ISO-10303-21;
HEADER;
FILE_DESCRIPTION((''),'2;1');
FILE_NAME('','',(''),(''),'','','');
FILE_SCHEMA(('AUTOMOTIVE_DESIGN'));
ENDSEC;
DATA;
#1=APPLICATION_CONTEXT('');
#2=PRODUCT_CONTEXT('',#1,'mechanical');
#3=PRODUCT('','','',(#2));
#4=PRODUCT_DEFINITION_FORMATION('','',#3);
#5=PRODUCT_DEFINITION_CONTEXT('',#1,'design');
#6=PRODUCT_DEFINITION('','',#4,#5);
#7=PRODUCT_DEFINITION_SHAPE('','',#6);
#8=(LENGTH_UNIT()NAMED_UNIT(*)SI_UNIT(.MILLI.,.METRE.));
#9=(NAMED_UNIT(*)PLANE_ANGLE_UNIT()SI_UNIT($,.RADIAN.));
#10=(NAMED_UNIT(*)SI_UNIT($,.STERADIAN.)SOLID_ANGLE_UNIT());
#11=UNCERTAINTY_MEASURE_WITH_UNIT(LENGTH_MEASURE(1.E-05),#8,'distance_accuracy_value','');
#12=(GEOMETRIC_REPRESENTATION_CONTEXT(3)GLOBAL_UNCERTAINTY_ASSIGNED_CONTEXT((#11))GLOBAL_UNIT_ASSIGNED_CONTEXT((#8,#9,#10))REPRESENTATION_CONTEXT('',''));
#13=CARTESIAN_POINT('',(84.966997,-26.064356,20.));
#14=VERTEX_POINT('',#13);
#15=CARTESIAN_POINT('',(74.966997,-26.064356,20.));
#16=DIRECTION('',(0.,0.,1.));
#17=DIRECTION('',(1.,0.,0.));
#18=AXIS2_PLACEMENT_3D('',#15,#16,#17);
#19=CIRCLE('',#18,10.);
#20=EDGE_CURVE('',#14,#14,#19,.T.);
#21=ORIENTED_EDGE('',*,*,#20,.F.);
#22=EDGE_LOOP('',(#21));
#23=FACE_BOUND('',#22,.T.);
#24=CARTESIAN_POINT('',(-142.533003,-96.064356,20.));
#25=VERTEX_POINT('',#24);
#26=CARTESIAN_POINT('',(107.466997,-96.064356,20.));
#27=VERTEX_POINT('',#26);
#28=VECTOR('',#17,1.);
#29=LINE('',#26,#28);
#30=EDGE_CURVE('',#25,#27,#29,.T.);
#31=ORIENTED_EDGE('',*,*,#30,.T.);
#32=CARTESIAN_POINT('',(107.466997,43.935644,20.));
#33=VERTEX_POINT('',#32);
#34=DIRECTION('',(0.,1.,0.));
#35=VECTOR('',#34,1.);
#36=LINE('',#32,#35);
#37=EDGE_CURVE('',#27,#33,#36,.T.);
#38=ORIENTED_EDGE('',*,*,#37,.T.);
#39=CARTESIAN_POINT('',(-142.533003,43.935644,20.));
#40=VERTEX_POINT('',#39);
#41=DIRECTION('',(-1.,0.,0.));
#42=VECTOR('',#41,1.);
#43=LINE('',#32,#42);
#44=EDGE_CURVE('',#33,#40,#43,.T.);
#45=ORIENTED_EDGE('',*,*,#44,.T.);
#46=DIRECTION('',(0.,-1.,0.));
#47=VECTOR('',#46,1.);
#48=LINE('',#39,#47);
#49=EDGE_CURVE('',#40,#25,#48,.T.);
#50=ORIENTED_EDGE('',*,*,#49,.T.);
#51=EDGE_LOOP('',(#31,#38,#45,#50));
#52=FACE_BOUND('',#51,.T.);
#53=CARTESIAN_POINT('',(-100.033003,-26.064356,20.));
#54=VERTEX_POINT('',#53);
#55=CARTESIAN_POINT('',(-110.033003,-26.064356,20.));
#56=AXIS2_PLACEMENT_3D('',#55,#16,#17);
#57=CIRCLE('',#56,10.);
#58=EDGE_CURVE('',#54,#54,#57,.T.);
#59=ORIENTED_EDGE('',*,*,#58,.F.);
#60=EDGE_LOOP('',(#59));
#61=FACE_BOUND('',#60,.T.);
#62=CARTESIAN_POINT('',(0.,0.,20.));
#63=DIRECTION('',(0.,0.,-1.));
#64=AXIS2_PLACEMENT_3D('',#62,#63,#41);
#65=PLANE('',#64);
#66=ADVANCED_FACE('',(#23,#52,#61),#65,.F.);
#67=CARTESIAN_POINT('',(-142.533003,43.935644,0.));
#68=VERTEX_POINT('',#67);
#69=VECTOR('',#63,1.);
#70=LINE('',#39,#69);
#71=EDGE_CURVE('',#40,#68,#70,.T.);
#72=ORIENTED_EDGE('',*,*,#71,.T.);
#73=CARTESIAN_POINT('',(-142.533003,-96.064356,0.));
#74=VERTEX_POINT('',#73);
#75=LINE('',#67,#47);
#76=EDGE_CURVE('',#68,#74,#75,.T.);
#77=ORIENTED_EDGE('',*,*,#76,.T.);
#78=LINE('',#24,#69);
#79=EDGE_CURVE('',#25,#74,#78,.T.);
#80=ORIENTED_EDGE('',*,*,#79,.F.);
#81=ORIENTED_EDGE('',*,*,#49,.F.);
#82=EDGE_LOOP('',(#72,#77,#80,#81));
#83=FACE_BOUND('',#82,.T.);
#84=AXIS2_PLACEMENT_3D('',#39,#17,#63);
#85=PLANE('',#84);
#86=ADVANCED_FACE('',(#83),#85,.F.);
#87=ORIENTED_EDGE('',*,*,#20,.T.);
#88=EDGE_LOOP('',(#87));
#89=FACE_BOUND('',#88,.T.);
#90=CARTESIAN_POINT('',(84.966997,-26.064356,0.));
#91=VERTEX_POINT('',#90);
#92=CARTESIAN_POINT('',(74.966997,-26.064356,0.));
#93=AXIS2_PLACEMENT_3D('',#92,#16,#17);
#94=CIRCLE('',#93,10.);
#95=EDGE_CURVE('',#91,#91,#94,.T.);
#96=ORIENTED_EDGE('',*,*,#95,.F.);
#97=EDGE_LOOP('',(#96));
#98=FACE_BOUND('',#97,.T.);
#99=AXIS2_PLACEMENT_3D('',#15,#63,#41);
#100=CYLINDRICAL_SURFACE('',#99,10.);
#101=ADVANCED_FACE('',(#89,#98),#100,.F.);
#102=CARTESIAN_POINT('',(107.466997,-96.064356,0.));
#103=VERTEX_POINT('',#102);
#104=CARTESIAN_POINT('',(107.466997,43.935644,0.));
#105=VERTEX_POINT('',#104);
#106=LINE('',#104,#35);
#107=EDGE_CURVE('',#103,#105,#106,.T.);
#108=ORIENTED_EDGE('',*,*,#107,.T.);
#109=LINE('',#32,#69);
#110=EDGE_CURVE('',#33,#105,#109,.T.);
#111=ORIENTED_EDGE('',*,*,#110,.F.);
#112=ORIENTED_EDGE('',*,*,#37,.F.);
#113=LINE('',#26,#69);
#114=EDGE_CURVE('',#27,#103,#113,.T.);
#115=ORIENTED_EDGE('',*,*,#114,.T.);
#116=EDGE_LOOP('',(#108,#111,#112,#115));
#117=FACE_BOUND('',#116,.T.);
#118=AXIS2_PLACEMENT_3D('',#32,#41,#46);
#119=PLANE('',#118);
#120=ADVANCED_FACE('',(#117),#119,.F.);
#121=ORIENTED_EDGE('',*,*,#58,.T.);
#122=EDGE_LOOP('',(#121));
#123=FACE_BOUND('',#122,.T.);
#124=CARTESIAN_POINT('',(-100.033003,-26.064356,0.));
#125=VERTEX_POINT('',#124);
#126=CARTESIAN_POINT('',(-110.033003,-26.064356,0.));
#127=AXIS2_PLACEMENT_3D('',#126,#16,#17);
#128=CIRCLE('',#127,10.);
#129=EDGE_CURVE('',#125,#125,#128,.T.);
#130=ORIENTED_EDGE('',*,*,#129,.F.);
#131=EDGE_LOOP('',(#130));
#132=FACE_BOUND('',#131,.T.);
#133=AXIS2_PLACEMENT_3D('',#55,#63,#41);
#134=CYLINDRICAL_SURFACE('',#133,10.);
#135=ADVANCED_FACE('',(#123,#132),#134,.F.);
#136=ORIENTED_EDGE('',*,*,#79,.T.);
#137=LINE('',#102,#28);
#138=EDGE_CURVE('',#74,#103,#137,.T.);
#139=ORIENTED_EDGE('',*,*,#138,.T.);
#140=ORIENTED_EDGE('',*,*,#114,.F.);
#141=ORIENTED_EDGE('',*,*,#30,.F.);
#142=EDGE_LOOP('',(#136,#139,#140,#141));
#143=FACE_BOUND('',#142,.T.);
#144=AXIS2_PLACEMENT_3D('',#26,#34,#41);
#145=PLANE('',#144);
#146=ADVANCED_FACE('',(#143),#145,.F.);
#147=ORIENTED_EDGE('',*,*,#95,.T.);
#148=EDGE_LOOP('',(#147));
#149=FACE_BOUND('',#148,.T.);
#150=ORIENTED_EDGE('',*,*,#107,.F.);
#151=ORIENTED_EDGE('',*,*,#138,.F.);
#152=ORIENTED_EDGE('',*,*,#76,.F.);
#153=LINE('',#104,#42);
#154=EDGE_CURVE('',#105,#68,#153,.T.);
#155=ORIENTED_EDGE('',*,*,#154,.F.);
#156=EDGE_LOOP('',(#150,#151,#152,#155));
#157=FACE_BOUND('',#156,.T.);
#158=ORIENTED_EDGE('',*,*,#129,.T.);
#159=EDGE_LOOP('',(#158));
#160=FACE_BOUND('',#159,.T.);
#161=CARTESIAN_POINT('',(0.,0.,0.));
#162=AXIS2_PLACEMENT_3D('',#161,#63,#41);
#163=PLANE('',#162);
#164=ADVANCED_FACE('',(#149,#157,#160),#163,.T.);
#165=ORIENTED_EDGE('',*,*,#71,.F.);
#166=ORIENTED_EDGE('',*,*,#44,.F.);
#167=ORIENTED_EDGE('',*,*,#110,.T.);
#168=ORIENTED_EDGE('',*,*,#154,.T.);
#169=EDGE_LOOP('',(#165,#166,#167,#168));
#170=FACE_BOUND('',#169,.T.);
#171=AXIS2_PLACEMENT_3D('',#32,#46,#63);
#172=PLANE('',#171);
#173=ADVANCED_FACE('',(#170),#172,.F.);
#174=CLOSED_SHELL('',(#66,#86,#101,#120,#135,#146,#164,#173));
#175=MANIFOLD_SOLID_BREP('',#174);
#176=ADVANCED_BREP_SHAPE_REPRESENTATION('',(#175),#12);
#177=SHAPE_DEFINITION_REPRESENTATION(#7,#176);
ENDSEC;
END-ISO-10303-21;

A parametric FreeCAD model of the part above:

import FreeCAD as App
import Part
import Sketcher
from FreeCAD import Vector


def add_polygon(sketch, points):
    """Adds a closed chain of lines whose ends are joined by coincident constraints."""
    first, n = sketch.GeometryCount, len(points)
    for a, b in zip(points, points[1:] + points[:1]):
        sketch.addGeometry(Part.LineSegment(App.Vector(*a, 0), App.Vector(*b, 0)), False)
    for i in range(n):
        sketch.addConstraint(Sketcher.Constraint("Coincident", first + i, 2, first + (i + 1) % n, 1))

doc = App.newDocument("Part")
body = doc.addObject("PartDesign::Body", "Body")

# Sketch on XY plane
sketch1 = body.newObject("Sketcher::SketchObject", "Sketch")
sketch1.AttachmentSupport = (doc.getObject("XY_Plane"), [""])
sketch1.MapMode = "FlatFace"
add_polygon(sketch1, [(-142.533003, 43.935644), (-142.533003, -96.064356), (107.466997, -96.064356), (107.466997, 43.935644)])  # lines 0-3
sketch1.addGeometry(Part.Circle(Vector(-110.033003, -26.064356, 0), Vector(0, 0, 1), 10), False)  # 4
sketch1.addGeometry(Part.Circle(Vector(74.966997, -26.064356, 0), Vector(0, 0, 1), 10), False)  # 5
sketch1.addConstraint(Sketcher.Constraint("Vertical", 0))
sketch1.addConstraint(Sketcher.Constraint("Horizontal", 1))
sketch1.addConstraint(Sketcher.Constraint("Vertical", 2))
sketch1.addConstraint(Sketcher.Constraint("Horizontal", 3))
sketch1.addConstraint(Sketcher.Constraint("Equal", 4, 5))
sketch1.addConstraint(Sketcher.Constraint("Horizontal", 4, 3, 5, 3))
sketch1.addConstraint(Sketcher.Constraint("Diameter", 4, 20.0))
sketch1.addConstraint(Sketcher.Constraint("DistanceX", 1, 1, 1, 2, 250.0))
sketch1.addConstraint(Sketcher.Constraint("DistanceY", 0, 2, 0, 1, 140.0))
sketch1.addConstraint(Sketcher.Constraint("DistanceX", 4, 3, 5, 3, 185.0))
sketch1.addConstraint(Sketcher.Constraint("DistanceY", 0, 2, 4, 3, 70.0))
sketch1.addConstraint(Sketcher.Constraint("DistanceX", 0, 2, 4, 3, 32.5))
sketch1.addConstraint(Sketcher.Constraint("DistanceX", 4, 3, -1, 1, 110.033003))
sketch1.addConstraint(Sketcher.Constraint("DistanceY", 4, 3, -1, 1, 26.064356))
pad1 = body.newObject("PartDesign::Pad", "Pad")
pad1.Profile = sketch1
pad1.Length = 20

doc.recompute()
